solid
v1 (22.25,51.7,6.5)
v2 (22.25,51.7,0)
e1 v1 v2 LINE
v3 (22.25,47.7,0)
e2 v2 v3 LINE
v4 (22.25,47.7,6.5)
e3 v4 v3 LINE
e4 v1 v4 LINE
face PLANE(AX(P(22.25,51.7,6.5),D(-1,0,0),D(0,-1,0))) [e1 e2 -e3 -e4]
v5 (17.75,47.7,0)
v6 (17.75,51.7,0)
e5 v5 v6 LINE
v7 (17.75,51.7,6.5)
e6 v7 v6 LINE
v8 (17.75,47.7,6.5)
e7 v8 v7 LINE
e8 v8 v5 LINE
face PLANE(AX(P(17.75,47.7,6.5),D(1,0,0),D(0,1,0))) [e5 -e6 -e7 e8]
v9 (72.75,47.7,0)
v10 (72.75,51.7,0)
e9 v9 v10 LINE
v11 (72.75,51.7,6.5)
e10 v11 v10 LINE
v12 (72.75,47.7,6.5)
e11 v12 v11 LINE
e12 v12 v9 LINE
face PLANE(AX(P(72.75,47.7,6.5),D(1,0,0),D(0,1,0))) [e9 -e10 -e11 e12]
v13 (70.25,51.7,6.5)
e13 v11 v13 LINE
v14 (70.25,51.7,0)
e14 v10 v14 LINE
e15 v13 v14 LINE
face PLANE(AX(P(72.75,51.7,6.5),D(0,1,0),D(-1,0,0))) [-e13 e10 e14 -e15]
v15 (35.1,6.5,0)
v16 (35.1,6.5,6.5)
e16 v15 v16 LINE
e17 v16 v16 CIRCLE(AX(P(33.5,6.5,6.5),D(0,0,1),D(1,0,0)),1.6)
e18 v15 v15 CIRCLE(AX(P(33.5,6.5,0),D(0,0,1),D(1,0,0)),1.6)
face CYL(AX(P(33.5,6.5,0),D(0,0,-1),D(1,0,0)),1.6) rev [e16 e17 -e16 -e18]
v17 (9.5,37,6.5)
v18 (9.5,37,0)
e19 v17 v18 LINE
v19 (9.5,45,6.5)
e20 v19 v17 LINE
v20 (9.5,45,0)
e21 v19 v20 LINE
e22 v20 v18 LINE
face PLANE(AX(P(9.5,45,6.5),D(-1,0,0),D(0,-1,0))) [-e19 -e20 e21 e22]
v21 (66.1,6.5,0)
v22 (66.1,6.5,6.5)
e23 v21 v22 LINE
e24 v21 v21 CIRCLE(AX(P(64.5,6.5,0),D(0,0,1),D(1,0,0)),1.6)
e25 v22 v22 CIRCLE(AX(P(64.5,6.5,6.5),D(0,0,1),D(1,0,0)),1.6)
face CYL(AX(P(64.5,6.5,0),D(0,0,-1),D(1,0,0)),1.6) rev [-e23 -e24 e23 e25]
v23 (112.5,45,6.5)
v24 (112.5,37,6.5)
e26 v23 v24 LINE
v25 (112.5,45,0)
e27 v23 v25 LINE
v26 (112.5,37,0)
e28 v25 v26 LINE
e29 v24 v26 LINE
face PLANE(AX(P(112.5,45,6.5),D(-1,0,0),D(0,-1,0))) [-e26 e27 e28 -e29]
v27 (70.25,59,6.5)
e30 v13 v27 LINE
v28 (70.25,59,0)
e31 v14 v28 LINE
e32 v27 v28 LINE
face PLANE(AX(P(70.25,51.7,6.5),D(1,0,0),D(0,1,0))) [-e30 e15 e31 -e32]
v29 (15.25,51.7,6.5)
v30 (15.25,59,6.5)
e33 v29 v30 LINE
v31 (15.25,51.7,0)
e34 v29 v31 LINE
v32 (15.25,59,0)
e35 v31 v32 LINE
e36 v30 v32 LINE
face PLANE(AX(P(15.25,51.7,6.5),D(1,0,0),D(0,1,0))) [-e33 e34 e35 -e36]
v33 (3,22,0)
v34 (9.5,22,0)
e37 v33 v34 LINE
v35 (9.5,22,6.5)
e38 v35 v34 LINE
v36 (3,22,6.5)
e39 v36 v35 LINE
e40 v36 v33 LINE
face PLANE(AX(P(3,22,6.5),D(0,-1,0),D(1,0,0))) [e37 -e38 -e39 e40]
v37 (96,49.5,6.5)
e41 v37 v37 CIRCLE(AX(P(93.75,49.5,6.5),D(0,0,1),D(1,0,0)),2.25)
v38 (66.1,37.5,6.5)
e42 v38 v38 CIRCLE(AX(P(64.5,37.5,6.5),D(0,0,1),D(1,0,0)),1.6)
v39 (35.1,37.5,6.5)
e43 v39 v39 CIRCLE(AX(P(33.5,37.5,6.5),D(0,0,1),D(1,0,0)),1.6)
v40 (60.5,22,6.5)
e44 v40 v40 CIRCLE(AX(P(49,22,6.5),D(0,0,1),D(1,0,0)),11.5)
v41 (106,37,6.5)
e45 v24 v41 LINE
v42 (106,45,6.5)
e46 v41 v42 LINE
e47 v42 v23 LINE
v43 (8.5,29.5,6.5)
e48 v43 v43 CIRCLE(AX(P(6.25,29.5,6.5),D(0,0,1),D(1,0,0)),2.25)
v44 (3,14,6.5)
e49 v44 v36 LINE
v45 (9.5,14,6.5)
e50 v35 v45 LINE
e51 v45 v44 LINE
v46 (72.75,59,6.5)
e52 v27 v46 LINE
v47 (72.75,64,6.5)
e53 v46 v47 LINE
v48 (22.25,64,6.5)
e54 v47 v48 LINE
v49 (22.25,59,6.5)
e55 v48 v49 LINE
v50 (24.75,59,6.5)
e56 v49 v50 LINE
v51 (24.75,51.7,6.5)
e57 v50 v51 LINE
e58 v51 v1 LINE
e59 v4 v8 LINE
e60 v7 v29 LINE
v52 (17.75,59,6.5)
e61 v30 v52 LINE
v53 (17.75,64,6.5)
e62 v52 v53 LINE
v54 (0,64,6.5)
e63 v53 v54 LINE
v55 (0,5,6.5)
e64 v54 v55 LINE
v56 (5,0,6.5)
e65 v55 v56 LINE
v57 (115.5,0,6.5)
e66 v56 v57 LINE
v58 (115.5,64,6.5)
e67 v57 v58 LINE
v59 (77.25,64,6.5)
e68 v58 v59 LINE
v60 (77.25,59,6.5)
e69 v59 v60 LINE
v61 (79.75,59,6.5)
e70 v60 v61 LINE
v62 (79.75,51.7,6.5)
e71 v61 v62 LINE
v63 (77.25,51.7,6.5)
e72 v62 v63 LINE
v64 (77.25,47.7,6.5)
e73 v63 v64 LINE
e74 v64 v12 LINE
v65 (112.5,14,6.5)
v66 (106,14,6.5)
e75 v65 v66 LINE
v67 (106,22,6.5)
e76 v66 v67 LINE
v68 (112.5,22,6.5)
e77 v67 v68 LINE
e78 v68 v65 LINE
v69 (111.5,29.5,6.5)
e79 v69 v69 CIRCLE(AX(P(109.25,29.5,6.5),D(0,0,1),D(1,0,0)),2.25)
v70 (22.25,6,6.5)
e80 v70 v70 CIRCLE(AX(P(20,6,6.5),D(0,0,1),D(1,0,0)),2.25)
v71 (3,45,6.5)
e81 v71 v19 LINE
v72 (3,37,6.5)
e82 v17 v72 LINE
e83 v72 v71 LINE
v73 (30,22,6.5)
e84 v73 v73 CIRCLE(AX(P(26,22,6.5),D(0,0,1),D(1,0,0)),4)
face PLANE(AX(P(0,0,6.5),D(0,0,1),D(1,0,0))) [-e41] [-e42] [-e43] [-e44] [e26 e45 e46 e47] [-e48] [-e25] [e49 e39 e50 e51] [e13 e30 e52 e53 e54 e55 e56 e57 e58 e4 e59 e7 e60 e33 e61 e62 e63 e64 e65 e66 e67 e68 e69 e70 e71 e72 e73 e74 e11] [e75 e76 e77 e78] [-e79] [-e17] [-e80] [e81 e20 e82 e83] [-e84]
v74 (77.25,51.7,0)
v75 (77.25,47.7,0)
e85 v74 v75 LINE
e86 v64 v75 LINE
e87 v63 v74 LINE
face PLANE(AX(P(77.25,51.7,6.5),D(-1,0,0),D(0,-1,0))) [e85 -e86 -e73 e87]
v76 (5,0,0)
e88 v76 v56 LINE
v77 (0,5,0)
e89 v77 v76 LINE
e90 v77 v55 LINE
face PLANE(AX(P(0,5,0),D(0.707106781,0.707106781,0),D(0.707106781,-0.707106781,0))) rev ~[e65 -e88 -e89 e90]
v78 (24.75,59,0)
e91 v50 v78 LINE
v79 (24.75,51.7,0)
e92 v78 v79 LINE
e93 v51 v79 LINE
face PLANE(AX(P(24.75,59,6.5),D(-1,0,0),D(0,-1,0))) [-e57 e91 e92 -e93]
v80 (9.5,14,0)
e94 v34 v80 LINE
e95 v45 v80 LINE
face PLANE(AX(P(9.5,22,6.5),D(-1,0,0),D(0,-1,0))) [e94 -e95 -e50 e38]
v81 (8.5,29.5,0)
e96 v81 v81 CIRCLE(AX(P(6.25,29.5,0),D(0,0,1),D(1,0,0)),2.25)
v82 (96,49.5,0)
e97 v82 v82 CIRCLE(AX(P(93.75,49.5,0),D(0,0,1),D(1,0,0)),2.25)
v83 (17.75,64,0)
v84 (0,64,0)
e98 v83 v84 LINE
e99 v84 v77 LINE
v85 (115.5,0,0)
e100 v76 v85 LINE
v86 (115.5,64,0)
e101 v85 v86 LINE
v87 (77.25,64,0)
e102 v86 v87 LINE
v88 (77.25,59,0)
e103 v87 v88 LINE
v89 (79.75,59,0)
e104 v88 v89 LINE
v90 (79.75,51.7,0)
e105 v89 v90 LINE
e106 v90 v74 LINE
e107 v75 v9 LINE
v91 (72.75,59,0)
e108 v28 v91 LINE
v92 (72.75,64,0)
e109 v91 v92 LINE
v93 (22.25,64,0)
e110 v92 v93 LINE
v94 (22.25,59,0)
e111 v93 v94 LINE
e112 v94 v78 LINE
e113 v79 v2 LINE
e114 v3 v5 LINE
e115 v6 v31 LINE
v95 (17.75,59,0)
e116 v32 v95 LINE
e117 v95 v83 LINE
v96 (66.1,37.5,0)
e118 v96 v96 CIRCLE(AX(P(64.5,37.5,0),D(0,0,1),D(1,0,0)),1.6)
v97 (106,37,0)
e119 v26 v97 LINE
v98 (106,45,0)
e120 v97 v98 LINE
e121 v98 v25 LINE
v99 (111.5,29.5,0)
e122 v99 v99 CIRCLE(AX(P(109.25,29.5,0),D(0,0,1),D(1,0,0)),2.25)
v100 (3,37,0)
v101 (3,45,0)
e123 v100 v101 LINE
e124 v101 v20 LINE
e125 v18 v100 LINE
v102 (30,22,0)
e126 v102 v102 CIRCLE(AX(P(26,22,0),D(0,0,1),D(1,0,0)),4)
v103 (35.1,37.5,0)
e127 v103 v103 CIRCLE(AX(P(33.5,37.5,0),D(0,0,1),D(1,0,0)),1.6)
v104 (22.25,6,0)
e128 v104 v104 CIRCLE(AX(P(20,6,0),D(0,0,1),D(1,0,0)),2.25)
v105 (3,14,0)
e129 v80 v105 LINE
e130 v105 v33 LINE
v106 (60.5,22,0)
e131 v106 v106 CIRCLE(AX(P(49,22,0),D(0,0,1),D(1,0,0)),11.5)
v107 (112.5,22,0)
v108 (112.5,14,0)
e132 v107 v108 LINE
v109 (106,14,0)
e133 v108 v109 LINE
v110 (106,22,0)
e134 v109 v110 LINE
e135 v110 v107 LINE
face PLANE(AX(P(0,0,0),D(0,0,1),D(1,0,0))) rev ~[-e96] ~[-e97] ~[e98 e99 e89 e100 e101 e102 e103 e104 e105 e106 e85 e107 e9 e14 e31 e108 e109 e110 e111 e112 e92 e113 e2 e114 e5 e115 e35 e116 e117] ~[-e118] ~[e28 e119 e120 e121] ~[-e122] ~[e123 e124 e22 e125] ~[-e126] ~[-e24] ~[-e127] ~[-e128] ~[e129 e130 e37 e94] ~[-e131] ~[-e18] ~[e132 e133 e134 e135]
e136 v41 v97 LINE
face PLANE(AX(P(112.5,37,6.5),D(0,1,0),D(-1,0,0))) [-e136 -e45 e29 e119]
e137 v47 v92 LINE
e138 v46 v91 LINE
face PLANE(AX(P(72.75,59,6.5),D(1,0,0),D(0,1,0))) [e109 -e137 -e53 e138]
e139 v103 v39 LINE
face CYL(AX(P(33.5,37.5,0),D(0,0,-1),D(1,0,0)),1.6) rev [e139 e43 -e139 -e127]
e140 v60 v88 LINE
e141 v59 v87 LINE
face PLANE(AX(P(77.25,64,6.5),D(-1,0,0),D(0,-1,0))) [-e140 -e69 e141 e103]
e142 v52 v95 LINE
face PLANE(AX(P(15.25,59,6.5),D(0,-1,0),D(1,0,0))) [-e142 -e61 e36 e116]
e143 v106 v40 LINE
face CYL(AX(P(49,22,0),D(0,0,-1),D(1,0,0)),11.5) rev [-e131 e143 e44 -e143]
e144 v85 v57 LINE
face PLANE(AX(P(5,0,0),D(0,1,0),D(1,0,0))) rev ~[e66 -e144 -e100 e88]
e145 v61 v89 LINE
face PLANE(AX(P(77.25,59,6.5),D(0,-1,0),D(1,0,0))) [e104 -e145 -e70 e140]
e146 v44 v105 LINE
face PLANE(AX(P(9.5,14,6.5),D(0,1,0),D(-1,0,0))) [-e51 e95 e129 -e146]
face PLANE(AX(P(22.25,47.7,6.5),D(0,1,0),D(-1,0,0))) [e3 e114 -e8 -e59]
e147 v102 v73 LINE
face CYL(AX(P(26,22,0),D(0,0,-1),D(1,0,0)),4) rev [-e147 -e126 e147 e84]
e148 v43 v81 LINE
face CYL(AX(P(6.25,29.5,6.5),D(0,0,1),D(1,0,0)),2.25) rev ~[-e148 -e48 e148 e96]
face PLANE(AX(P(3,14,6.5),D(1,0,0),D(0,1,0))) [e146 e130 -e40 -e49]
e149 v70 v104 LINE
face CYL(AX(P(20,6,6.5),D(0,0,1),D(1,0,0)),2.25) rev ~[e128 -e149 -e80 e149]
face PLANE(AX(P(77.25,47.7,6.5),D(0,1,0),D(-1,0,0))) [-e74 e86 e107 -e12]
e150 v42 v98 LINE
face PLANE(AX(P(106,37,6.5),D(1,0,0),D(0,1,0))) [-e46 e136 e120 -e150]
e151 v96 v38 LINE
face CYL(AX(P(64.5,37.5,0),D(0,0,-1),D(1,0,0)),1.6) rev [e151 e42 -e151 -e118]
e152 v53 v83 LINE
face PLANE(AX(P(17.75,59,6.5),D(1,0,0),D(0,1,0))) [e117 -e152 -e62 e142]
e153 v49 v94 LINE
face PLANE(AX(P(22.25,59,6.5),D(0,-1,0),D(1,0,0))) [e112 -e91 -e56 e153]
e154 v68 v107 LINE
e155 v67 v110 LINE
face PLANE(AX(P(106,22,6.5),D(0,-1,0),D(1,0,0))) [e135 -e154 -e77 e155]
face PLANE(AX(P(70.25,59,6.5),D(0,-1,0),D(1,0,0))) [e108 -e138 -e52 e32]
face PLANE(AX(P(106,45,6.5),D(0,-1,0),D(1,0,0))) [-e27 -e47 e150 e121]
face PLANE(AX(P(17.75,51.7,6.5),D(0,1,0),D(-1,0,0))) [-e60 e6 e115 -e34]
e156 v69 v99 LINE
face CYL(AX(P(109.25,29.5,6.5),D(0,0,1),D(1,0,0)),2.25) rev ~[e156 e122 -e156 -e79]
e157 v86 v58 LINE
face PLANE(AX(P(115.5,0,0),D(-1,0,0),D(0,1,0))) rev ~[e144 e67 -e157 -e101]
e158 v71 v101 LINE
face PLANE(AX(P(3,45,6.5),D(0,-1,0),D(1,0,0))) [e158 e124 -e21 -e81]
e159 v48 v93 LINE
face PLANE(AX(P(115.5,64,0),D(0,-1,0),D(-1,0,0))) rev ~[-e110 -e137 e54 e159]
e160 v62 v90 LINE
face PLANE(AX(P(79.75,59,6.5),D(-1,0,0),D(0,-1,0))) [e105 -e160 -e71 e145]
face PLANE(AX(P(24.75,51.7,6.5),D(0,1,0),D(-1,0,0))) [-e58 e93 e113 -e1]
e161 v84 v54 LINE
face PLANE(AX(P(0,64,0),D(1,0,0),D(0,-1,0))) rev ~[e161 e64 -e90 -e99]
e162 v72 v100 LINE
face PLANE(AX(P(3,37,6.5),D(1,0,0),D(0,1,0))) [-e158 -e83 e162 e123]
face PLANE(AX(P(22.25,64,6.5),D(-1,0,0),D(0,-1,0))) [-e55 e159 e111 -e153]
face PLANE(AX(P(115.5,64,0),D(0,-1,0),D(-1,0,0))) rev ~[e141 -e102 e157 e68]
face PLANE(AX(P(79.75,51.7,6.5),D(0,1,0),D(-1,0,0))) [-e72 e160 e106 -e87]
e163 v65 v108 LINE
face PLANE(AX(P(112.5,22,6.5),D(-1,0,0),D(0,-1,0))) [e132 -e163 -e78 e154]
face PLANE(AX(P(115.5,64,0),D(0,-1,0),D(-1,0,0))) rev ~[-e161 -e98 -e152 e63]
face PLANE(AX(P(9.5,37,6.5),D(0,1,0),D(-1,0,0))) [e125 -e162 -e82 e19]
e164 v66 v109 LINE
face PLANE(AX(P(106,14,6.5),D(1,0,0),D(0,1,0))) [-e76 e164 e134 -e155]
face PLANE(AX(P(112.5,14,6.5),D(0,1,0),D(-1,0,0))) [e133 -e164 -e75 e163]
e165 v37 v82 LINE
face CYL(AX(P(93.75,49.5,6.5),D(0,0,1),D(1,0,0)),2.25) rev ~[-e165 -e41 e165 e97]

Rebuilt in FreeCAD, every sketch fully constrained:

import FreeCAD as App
import Part
import Sketcher

V = App.Vector
Q = App.Units.Quantity


def add_polygon(sketch, points):
    """Adds a closed chain of lines whose ends are joined by coincident constraints."""
    first, n = sketch.GeometryCount, len(points)
    for a, b in zip(points, points[1:] + points[:1]):
        sketch.addGeometry(Part.LineSegment(App.Vector(*a, 0), App.Vector(*b, 0)), False)
    for i in range(n):
        sketch.addConstraint(Sketcher.Constraint("Coincident", first + i, 2, first + (i + 1) % n, 1))

doc = App.newDocument("Part")
body = doc.addObject("PartDesign::Body", "Body")

# Sketch on XY plane
sketch1 = body.newObject("Sketcher::SketchObject", "Sketch")
sketch1.AttachmentSupport = (doc.getObject("XY_Plane"), [""])
sketch1.MapMode = "FlatFace"
add_polygon(sketch1, [(0, 5), (5, 0), (115.5, 0), (115.5, 64), (0, 64)])  # lines 0-4
sketch1.addGeometry(Part.Circle(V(33.5, 6.5, 0), V(0, 0, 1), 1.6), False)  # 5
sketch1.addGeometry(Part.Circle(V(26, 22, 0), V(0, 0, 1), 4), False)  # 6
sketch1.addGeometry(Part.Circle(V(49, 22, 0), V(0, 0, 1), 11.5), False)  # 7
sketch1.addGeometry(Part.Circle(V(64.5, 6.5, 0), V(0, 0, 1), 1.6), False)  # 8
sketch1.addGeometry(Part.Circle(V(33.5, 37.5, 0), V(0, 0, 1), 1.6), False)  # 9
sketch1.addGeometry(Part.Circle(V(64.5, 37.5, 0), V(0, 0, 1), 1.6), False)  # 10
sketch1.addConstraint([
    Sketcher.Constraint("Horizontal", 1),
    Sketcher.Constraint("Vertical", 2),
    Sketcher.Constraint("Horizontal", 3),
    Sketcher.Constraint("Vertical", 4),
    Sketcher.Constraint("Equal", 5, 8),
    Sketcher.Constraint("Equal", 8, 9),
    Sketcher.Constraint("Equal", 9, 10),
    Sketcher.Constraint("PointOnObject", 0, 2, -1),
    Sketcher.Constraint("PointOnObject", 3, 2, -2),
    Sketcher.Constraint("Horizontal", 6, 3, 7, 3),
    Sketcher.Constraint("Horizontal", 5, 3, 8, 3),
    Sketcher.Constraint("Horizontal", 9, 3, 10, 3),
    Sketcher.Constraint("Vertical", 5, 3, 9, 3),
    Sketcher.Constraint("Vertical", 8, 3, 10, 3),
    Sketcher.Constraint("Diameter", 6, Q("8 mm")),
    Sketcher.Constraint("Diameter", 7, Q("23 mm")),
    Sketcher.Constraint("Diameter", 5, Q("3.2 mm")),
    Sketcher.Constraint("Angle", 0, Q("-45 deg")),
    Sketcher.Constraint("DistanceX", 3, 2, 3, 1, Q("115.5 mm")),
    Sketcher.Constraint("DistanceX", -1, 1, 6, 3, Q("26 mm")),
    Sketcher.Constraint("DistanceY", -1, 1, 6, 3, Q("22 mm")),
    Sketcher.Constraint("DistanceX", -1, 1, 0, 2, Q("5 mm")),
    Sketcher.Constraint("DistanceX", 6, 3, 7, 3, Q("23 mm")),
    Sketcher.Constraint("DistanceX", 5, 3, 8, 3, Q("31 mm")),
    Sketcher.Constraint("DistanceY", 5, 3, 9, 3, Q("31 mm")),
    Sketcher.Constraint("DistanceY", 7, 3, 2, 2, Q("42 mm")),
    Sketcher.Constraint("DistanceX", 8, 3, 1, 2, Q("51 mm")),
    Sketcher.Constraint("DistanceY", -1, 1, 5, 3, Q("6.5 mm")),
])
pad1 = body.newObject("PartDesign::Pad", "Pad")
pad1.Profile = sketch1
pad1.Length = 6.5

# Sketch on XY plane
sketch2 = body.newObject("Sketcher::SketchObject", "Sketch001")
sketch2.AttachmentSupport = (doc.getObject("XY_Plane"), [""])
sketch2.MapMode = "FlatFace"
sketch2.AttachmentOffset = App.Placement(V(0, 0, 6.5), App.Rotation())
sketch2.addGeometry([
    Part.Circle(V(20, 6, 0), V(0, 0, 1), 2.2),
    Part.Circle(V(93.8, 49.5, 0), V(0, 0, 1), 2.2),
], False)
sketch2.addConstraint([
    Sketcher.Constraint("Equal", 0, 1),
    Sketcher.Constraint("Diameter", 0, Q("4.5 mm")),
    Sketcher.Constraint("DistanceY", -1, 1, 0, 3, Q("6 mm")),
    Sketcher.Constraint("DistanceX", -1, 1, 0, 3, Q("20 mm")),
    Sketcher.Constraint("DistanceY", -1, 1, 1, 3, Q("49.5 mm")),
    Sketcher.Constraint("DistanceX", -1, 1, 1, 3, Q("93.75 mm")),
])
pocket1 = body.newObject("PartDesign::Pocket", "Pocket")
pocket1.Profile = sketch2
pocket1.Type = "ThroughAll"

# Sketch on XY plane
sketch3 = body.newObject("Sketcher::SketchObject", "Sketch002")
sketch3.AttachmentSupport = (doc.getObject("XY_Plane"), [""])
sketch3.MapMode = "FlatFace"
sketch3.AttachmentOffset = App.Placement(V(0, 0, 6.5), App.Rotation())
add_polygon(sketch3, [(9.5, 22), (3, 22), (3, 14), (9.5, 14)])  # lines 0-3
add_polygon(sketch3, [(9.5, 45), (3, 45), (3, 37), (9.5, 37)])  # lines 4-7
add_polygon(sketch3, [(112.5, 45), (106, 45), (106, 37), (112.5, 37)])  # lines 8-11
add_polygon(sketch3, [(112.5, 22), (106, 22), (106, 14), (112.5, 14)])  # lines 12-15
sketch3.addGeometry(Part.Circle(V(6.2, 29.5, 0), V(0, 0, 1), 2.2), False)  # 16
sketch3.addGeometry(Part.Circle(V(109.2, 29.5, 0), V(0, 0, 1), 2.2), False)  # 17
sketch3.addConstraint([
    Sketcher.Constraint("Horizontal", 0),
    Sketcher.Constraint("Vertical", 1),
    Sketcher.Constraint("Horizontal", 2),
    Sketcher.Constraint("Vertical", 3),
    Sketcher.Constraint("Horizontal", 4),
    Sketcher.Constraint("Vertical", 5),
    Sketcher.Constraint("Horizontal", 6),
    Sketcher.Constraint("Vertical", 7),
    Sketcher.Constraint("Horizontal", 8),
    Sketcher.Constraint("Vertical", 9),
    Sketcher.Constraint("Horizontal", 10),
    Sketcher.Constraint("Vertical", 11),
    Sketcher.Constraint("Horizontal", 12),
    Sketcher.Constraint("Vertical", 13),
    Sketcher.Constraint("Horizontal", 14),
    Sketcher.Constraint("Vertical", 15),
    Sketcher.Constraint("Equal", 16, 17),
    Sketcher.Constraint("Horizontal", 16, 3, 17, 3),
    Sketcher.Constraint("Horizontal", 7, 2, 8, 2),
    Sketcher.Constraint("Horizontal", 6, 2, 9, 2),
    Sketcher.Constraint("Horizontal", 3, 2, 12, 2),
    Sketcher.Constraint("Horizontal", 2, 2, 13, 2),
    Sketcher.Constraint("Vertical", 1, 2, 4, 2),
    Sketcher.Constraint("Vertical", 3, 2, 6, 2),
    Sketcher.Constraint("Vertical", 9, 2, 12, 2),
    Sketcher.Constraint("Vertical", 11, 2, 14, 2),
    Sketcher.Constraint("Equal", 6, 8),
    Sketcher.Constraint("Equal", 3, 5),
    Sketcher.Constraint("Diameter", 16, Q("4.5 mm")),
    Sketcher.Constraint("DistanceY", 1, 2, 1, 1, Q("8 mm")),
    Sketcher.Constraint("DistanceX", 0, 2, 0, 1, Q("6.5 mm")),
    Sketcher.Constraint("DistanceX", -1, 1, 0, 2, Q("3 mm")),
    Sketcher.Constraint("DistanceY", -1, 1, 1, 2, Q("14 mm")),
    Sketcher.Constraint("DistanceY", 0, 2, 5, 2, Q("15 mm")),
    Sketcher.Constraint("DistanceX", -1, 1, 8, 2, Q("106 mm")),
    Sketcher.Constraint("DistanceX", 16, 3, 17, 3, Q("103 mm")),
    Sketcher.Constraint("DistanceY", -1, 1, 16, 3, Q("29.5 mm")),
    Sketcher.Constraint("DistanceX", -1, 1, 16, 3, Q("6.25 mm")),
])
pocket2 = body.newObject("PartDesign::Pocket", "Pocket001")
pocket2.Profile = sketch3
pocket2.Type = "ThroughAll"

# Sketch on XY plane
sketch4 = body.newObject("Sketcher::SketchObject", "Sketch003")
sketch4.AttachmentSupport = (doc.getObject("XY_Plane"), [""])
sketch4.MapMode = "FlatFace"
sketch4.AttachmentOffset = App.Placement(V(0, 0, 6.5), App.Rotation())
add_polygon(sketch4, [(77.2, 59), (77.2, 64), (72.8, 64), (72.8, 59), (70.2, 59), (70.2, 51.7), (72.8, 51.7), (72.8, 47.7), (77.2, 47.7), (77.2, 51.7), (79.8, 51.7), (79.8, 59)])  # lines 0-11
add_polygon(sketch4, [(22.2, 59), (22.2, 64), (17.8, 64), (17.8, 59), (15.2, 59), (15.2, 51.7), (17.8, 51.7), (17.8, 47.7), (22.2, 47.7), (22.2, 51.7), (24.8, 51.7), (24.8, 59)])  # lines 12-23
sketch4.addConstraint([
    Sketcher.Constraint("Vertical", 0),
    Sketcher.Constraint("Horizontal", 1),
    Sketcher.Constraint("Vertical", 2),
    Sketcher.Constraint("Horizontal", 3),
    Sketcher.Constraint("Vertical", 4),
    Sketcher.Constraint("Horizontal", 5),
    Sketcher.Constraint("Vertical", 6),
    Sketcher.Constraint("Horizontal", 7),
    Sketcher.Constraint("Vertical", 8),
    Sketcher.Constraint("Horizontal", 9),
    Sketcher.Constraint("Vertical", 10),
    Sketcher.Constraint("Horizontal", 11),
    Sketcher.Constraint("Vertical", 12),
    Sketcher.Constraint("Horizontal", 13),
    Sketcher.Constraint("Vertical", 14),
    Sketcher.Constraint("Horizontal", 15),
    Sketcher.Constraint("Vertical", 16),
    Sketcher.Constraint("Horizontal", 17),
    Sketcher.Constraint("Vertical", 18),
    Sketcher.Constraint("Horizontal", 19),
    Sketcher.Constraint("Vertical", 20),
    Sketcher.Constraint("Horizontal", 21),
    Sketcher.Constraint("Vertical", 22),
    Sketcher.Constraint("Horizontal", 23),
    Sketcher.Constraint("Horizontal", 5, 2, 8, 2),
    Sketcher.Constraint("Horizontal", 3, 2, 10, 2),
    Sketcher.Constraint("Horizontal", 1, 2, 12, 2),
    Sketcher.Constraint("Horizontal", 11, 2, 14, 2),
    Sketcher.Constraint("Horizontal", 9, 2, 16, 2),
    Sketcher.Constraint("Horizontal", 7, 2, 18, 2),
    Sketcher.Constraint("Horizontal", 17, 2, 20, 2),
    Sketcher.Constraint("Horizontal", 15, 2, 22, 2),
    Sketcher.Constraint("Vertical", 2, 2, 5, 2),
    Sketcher.Constraint("Vertical", 0, 2, 7, 2),
    Sketcher.Constraint("Vertical", 14, 2, 17, 2),
    Sketcher.Constraint("Vertical", 12, 2, 19, 2),
    Sketcher.Constraint("Equal", 5, 9),
    Sketcher.Constraint("Equal", 7, 13),
    Sketcher.Constraint("Equal", 11, 15),
    Sketcher.Constraint("Equal", 17, 21),
    Sketcher.Constraint("DistanceY", 0, 1, 0, 2, Q("5 mm")),
    Sketcher.Constraint("DistanceY", 6, 2, 6, 1, Q("4 mm")),
    Sketcher.Constraint("DistanceX", 1, 2, 1, 1, Q("4.5 mm")),
    Sketcher.Constraint("DistanceX", 3, 2, 3, 1, Q("2.5 mm")),
    Sketcher.Constraint("DistanceY", 4, 2, 4, 1, Q("7.3 mm")),
    Sketcher.Constraint("DistanceX", 13, 2, 1, 2, Q("55 mm")),
    Sketcher.Constraint("DistanceY", -1, 1, 0, 2, Q("64 mm")),
    Sketcher.Constraint("DistanceX", -1, 1, 0, 2, Q("77.25 mm")),
])
pocket3 = body.newObject("PartDesign::Pocket", "Pocket002")
pocket3.Profile = sketch4
pocket3.Type = "ThroughAll"

doc.recompute()
